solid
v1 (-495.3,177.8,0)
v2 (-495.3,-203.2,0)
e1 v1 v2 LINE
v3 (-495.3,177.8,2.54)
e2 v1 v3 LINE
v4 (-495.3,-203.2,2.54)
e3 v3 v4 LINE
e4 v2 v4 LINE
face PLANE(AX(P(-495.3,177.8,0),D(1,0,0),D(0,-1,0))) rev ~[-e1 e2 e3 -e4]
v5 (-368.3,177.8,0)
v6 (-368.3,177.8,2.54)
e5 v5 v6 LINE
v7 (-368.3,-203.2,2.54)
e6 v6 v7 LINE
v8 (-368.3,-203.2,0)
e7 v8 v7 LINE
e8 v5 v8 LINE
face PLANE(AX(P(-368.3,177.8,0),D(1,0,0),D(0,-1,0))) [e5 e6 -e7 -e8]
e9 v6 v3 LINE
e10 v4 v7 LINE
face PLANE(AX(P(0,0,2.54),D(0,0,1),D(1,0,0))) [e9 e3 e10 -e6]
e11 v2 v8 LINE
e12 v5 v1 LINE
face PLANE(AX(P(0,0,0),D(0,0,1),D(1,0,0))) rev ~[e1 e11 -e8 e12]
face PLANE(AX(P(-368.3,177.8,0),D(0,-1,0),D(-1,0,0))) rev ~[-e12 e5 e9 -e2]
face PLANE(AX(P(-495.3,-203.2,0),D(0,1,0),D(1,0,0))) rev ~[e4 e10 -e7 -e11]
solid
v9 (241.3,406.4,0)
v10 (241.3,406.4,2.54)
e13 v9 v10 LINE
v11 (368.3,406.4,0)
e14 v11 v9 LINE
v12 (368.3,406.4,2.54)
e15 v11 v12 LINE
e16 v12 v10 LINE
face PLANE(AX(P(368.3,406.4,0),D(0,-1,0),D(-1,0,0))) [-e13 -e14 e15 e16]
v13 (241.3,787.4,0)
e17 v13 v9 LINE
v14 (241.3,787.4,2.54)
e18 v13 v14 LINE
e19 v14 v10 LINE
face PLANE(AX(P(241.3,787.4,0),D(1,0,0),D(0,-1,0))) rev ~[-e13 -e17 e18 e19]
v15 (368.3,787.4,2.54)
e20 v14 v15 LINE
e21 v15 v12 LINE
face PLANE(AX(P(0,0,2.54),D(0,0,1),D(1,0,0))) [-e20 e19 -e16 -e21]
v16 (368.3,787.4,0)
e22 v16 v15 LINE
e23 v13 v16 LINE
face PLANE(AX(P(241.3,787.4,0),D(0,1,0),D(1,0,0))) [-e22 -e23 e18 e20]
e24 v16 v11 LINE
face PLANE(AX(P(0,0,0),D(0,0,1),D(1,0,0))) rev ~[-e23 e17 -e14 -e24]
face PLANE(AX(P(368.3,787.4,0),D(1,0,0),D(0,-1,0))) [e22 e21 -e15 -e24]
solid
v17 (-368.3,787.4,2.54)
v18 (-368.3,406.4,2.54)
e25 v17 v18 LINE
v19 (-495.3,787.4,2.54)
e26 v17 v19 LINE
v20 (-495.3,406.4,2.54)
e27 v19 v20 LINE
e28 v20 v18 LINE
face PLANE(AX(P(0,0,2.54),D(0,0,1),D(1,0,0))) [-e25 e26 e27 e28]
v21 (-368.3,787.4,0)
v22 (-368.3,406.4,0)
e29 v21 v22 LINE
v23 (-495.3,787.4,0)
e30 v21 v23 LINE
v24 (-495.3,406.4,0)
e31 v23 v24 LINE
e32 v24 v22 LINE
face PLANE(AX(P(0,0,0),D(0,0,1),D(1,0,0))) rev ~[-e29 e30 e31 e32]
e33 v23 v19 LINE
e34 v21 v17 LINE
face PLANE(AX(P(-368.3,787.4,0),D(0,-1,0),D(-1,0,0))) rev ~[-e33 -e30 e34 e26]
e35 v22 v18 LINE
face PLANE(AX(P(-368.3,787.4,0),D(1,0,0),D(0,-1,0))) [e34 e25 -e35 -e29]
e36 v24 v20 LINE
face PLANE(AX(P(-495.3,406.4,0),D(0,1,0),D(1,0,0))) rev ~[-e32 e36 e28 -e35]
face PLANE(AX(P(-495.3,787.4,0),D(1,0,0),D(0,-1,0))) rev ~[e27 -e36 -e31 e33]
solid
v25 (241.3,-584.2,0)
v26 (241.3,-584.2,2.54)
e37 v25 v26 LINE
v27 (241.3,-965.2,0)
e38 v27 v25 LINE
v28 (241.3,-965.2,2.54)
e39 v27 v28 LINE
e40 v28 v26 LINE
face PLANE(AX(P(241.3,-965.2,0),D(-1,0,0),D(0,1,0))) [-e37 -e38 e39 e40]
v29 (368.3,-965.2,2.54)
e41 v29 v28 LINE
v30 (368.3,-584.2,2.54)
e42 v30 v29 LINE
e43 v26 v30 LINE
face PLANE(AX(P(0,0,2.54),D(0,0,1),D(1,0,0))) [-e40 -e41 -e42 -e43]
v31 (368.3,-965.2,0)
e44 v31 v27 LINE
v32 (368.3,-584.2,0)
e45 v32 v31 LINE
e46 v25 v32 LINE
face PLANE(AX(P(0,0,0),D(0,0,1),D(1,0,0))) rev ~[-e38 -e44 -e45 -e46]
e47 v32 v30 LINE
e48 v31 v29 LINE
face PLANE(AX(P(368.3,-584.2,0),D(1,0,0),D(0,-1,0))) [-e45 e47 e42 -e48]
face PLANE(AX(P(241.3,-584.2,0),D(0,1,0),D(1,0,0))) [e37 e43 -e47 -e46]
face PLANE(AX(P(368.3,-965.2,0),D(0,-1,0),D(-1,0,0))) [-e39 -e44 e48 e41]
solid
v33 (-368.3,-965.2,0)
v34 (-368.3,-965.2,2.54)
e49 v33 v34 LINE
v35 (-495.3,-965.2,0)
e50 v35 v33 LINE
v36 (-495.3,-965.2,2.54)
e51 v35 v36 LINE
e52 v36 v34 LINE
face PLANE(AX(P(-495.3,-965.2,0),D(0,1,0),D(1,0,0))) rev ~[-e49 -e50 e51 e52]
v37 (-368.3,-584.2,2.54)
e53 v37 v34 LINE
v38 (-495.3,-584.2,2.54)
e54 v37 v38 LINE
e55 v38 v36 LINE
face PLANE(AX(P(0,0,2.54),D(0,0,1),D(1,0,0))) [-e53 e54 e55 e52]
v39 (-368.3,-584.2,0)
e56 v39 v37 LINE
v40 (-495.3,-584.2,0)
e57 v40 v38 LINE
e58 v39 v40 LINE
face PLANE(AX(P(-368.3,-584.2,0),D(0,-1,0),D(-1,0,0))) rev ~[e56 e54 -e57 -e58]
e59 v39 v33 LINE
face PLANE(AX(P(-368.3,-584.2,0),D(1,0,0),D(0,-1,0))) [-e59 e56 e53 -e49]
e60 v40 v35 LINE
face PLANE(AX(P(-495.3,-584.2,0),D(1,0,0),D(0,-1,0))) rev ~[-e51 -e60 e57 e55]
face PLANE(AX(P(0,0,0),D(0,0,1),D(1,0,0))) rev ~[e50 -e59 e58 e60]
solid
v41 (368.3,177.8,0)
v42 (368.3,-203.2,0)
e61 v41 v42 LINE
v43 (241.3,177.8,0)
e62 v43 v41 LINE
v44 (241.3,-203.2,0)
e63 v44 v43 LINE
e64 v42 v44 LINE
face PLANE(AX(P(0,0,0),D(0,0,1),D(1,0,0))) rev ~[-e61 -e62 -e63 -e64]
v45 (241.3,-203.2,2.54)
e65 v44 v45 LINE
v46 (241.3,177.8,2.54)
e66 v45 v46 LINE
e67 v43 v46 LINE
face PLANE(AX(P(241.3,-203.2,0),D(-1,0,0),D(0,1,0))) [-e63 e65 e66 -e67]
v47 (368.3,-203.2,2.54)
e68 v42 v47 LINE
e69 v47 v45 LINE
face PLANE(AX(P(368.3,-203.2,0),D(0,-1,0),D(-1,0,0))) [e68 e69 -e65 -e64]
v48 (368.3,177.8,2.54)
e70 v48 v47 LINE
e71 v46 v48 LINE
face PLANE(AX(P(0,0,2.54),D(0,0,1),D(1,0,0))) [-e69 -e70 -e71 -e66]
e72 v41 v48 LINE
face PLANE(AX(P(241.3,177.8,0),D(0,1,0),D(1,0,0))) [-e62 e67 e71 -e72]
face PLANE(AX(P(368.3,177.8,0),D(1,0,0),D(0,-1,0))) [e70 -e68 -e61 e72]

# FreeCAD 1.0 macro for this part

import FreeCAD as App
import Part
import Sketcher
Q = App.Units.Quantity


def add_polygon(sketch, points):
    """Adds a closed chain of lines whose ends are joined by coincident constraints."""
    first, n = sketch.GeometryCount, len(points)
    for a, b in zip(points, points[1:] + points[:1]):
        sketch.addGeometry(Part.LineSegment(App.Vector(*a, 0), App.Vector(*b, 0)), False)
    for i in range(n):
        sketch.addConstraint(Sketcher.Constraint("Coincident", first + i, 2, first + (i + 1) % n, 1))

doc = App.newDocument("Part")
body = doc.addObject("PartDesign::Body", "Body")
body.AllowCompound = True

sketch1 = body.newObject("Sketcher::SketchObject", "Sketch")
sketch1.AttachmentSupport = (doc.getObject("XY_Plane"), [""])
sketch1.MapMode = "FlatFace"
add_polygon(sketch1, [(-368.3, -965.2), (-368.3, -584.2), (-495.3, -584.2), (-495.3, -965.2)])
add_polygon(sketch1, [(-368.3, -203.2), (-368.3, 177.8), (-495.3, 177.8), (-495.3, -203.2)])
add_polygon(sketch1, [(-495.3, 406.4), (-368.3, 406.4), (-368.3, 787.4), (-495.3, 787.4)])
add_polygon(sketch1, [(368.3, 787.4), (241.3, 787.4), (241.3, 406.4), (368.3, 406.4)])
add_polygon(sketch1, [(368.3, -584.2), (241.3, -584.2), (241.3, -965.2), (368.3, -965.2)])
add_polygon(sketch1, [(368.3, 177.8), (241.3, 177.8), (241.3, -203.2), (368.3, -203.2)])
sketch1.addConstraint(Sketcher.Constraint("Vertical", 0))
sketch1.addConstraint(Sketcher.Constraint("Horizontal", 1))
sketch1.addConstraint(Sketcher.Constraint("Vertical", 2))
sketch1.addConstraint(Sketcher.Constraint("Horizontal", 3))
sketch1.addConstraint(Sketcher.Constraint("Vertical", 4))
sketch1.addConstraint(Sketcher.Constraint("Horizontal", 5))
sketch1.addConstraint(Sketcher.Constraint("Vertical", 6))
sketch1.addConstraint(Sketcher.Constraint("Horizontal", 7))
sketch1.addConstraint(Sketcher.Constraint("Horizontal", 8))
sketch1.addConstraint(Sketcher.Constraint("Vertical", 9))
sketch1.addConstraint(Sketcher.Constraint("Horizontal", 10))
sketch1.addConstraint(Sketcher.Constraint("Vertical", 11))
sketch1.addConstraint(Sketcher.Constraint("Horizontal", 12))
sketch1.addConstraint(Sketcher.Constraint("Vertical", 13))
sketch1.addConstraint(Sketcher.Constraint("Horizontal", 14))
sketch1.addConstraint(Sketcher.Constraint("Vertical", 15))
sketch1.addConstraint(Sketcher.Constraint("Horizontal", 16))
sketch1.addConstraint(Sketcher.Constraint("Vertical", 17))
sketch1.addConstraint(Sketcher.Constraint("Horizontal", 18))
sketch1.addConstraint(Sketcher.Constraint("Vertical", 19))
sketch1.addConstraint(Sketcher.Constraint("Horizontal", 20))
sketch1.addConstraint(Sketcher.Constraint("Vertical", 21))
sketch1.addConstraint(Sketcher.Constraint("Horizontal", 22))
sketch1.addConstraint(Sketcher.Constraint("Vertical", 23))
sketch1.addConstraint(Sketcher.Constraint("Symmetric", 8, 2, 14, 2, -2))
sketch1.addConstraint(Sketcher.Constraint("Symmetric", 3, 2, 18, 2, -2))
sketch1.addConstraint(Sketcher.Constraint("Symmetric", 7, 2, 22, 2, -2))
sketch1.addConstraint(Sketcher.Constraint("Horizontal", 10, 2, 12, 2))
sketch1.addConstraint(Sketcher.Constraint("Horizontal", 1, 2, 16, 2))
sketch1.addConstraint(Sketcher.Constraint("Horizontal", 5, 2, 20, 2))
sketch1.addConstraint(Sketcher.Constraint("Vertical", 3, 2, 4, 2))
sketch1.addConstraint(Sketcher.Constraint("Vertical", 2, 2, 5, 2))
sketch1.addConstraint(Sketcher.Constraint("Vertical", 7, 2, 8, 2))
sketch1.addConstraint(Sketcher.Constraint("Vertical", 6, 2, 10, 2))
sketch1.addConstraint(Sketcher.Constraint("Vertical", 13, 2, 16, 2))
sketch1.addConstraint(Sketcher.Constraint("Vertical", 17, 2, 20, 2))
sketch1.addConstraint(Sketcher.Constraint("Equal", 10, 12))
sketch1.addConstraint(Sketcher.Constraint("Equal", 2, 4))
sketch1.addConstraint(Sketcher.Constraint("Equal", 6, 9))
sketch1.addConstraint(Sketcher.Constraint("DistanceX", 1, 2, 1, 1, Q("5 in")))
sketch1.addConstraint(Sketcher.Constraint("DistanceY", 0, 1, 0, 2, Q("15 in")))
sketch1.addConstraint(Sketcher.Constraint("DistanceY", 1, 2, 6, 2, Q("15 in")))
sketch1.addConstraint(Sketcher.Constraint("DistanceY", 4, 2, 8, 2, Q("9 in")))
sketch1.addConstraint(Sketcher.Constraint("DistanceY", 0, 2, -1, 1, Q("23 in")))
sketch1.addConstraint(Sketcher.Constraint("DistanceX", 9, 2, 12, 2, Q("24 in")))
pad1 = body.newObject("PartDesign::Pad", "Pad")
pad1.Profile = sketch1
pad1.Length = Q("0.1 in")

doc.recompute()
